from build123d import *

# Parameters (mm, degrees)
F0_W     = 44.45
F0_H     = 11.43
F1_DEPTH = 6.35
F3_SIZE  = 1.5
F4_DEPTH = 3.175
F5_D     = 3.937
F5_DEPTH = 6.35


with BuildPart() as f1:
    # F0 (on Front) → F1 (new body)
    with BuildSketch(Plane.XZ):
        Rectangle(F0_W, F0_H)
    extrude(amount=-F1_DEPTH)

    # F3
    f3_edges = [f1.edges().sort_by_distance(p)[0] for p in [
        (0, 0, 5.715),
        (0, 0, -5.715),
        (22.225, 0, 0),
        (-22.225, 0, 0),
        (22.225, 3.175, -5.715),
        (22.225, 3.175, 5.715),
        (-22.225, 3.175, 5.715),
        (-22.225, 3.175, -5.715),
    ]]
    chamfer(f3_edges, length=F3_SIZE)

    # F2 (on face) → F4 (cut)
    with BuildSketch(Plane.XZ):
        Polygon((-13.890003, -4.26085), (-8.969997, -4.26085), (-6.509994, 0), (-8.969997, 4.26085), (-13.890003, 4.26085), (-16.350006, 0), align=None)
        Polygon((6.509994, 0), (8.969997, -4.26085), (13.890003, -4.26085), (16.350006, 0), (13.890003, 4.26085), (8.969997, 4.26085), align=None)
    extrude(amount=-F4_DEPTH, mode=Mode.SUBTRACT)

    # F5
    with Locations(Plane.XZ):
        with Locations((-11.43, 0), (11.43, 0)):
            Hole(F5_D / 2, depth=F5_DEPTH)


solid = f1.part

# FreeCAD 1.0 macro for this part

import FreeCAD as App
import Part
import Sketcher

V = App.Vector
Q = App.Units.Quantity


def edges_at(feature, points):
    """Names of the edges that pass closest to the given points."""
    edges = feature.Shape.Edges
    near = lambda p: min(range(len(edges)), key=lambda i: edges[i].distToShape(Part.Vertex(*p))[0])
    return sorted({f"Edge{near(p) + 1}" for p in points})

doc = App.newDocument("Part")
body = doc.addObject("PartDesign::Body", "Body")

# Sketch on XZ plane
sketch1 = body.newObject("Sketcher::SketchObject", "Sketch")
sketch1.AttachmentSupport = (doc.getObject("XZ_Plane"), [""])
sketch1.MapMode = "FlatFace"
sketch1.addGeometry([
    Part.LineSegment(V(-22.225, 5.715, 0), V(-22.225, -5.715, 0)),
    Part.LineSegment(V(-22.225, -5.715, 0), V(22.225, -5.715, 0)),
    Part.LineSegment(V(22.225, -5.715, 0), V(22.225, 5.715, 0)),
    Part.LineSegment(V(22.225, 5.715, 0), V(-22.225, 5.715, 0)),
], False)
sketch1.addConstraint([
    Sketcher.Constraint("Coincident", 0, 2, 1, 1),
    Sketcher.Constraint("Coincident", 1, 2, 2, 1),
    Sketcher.Constraint("Coincident", 2, 2, 3, 1),
    Sketcher.Constraint("Coincident", 3, 2, 0, 1),
    Sketcher.Constraint("Vertical", 0),
    Sketcher.Constraint("Horizontal", 1),
    Sketcher.Constraint("Vertical", 2),
    Sketcher.Constraint("Horizontal", 3),
    Sketcher.Constraint("Symmetric", 0, 2, 2, 2, -1, 1),
    Sketcher.Constraint("DistanceX", 1, 1, 1, 2, Q("1.75 in")),
    Sketcher.Constraint("DistanceY", 0, 2, 0, 1, Q("0.45 in")),
])
pad1 = body.newObject("PartDesign::Pad", "Pad")
pad1.Profile = sketch1
pad1.Length = Q("0.25 in")
pad1.Reversed = True
doc.recompute()

chamfer = body.newObject("PartDesign::Chamfer", "Chamfer")
chamfer.Base = (pad1, edges_at(pad1, [
    (0, 0, 5.715),
    (0, 0, -5.715),
    (22.225, 0, 0),
    (-22.225, 0, 0),
    (22.225, 3.175, -5.715),
    (22.225, 3.175, 5.715),
    (-22.225, 3.175, 5.715),
    (-22.225, 3.175, -5.715),
]))
chamfer.Size = 1.5

# Sketch on XZ plane
sketch2 = body.newObject("Sketcher::SketchObject", "Sketch001")
sketch2.AttachmentSupport = (doc.getObject("XZ_Plane"), [""])
sketch2.MapMode = "FlatFace"
sketch2.addGeometry([
    Part.LineSegment(V(-13.890003, -4.26085, 0), V(-8.969997, -4.26085, 0)),  # 0
    Part.LineSegment(V(-8.969997, -4.26085, 0), V(-6.509994, 0, 0)),  # 1
    Part.LineSegment(V(-6.509994, 0, 0), V(-8.969997, 4.26085, 0)),  # 2
    Part.LineSegment(V(-8.969997, 4.26085, 0), V(-13.890003, 4.26085, 0)),  # 3
    Part.LineSegment(V(-13.890003, 4.26085, 0), V(-16.350006, 0, 0)),  # 4
    Part.LineSegment(V(-16.350006, 0, 0), V(-13.890003, -4.26085, 0)),  # 5
    Part.LineSegment(V(6.509994, 0, 0), V(8.969997, -4.26085, 0)),  # 6
    Part.LineSegment(V(8.969997, -4.26085, 0), V(13.890003, -4.26085, 0)),  # 7
    Part.LineSegment(V(13.890003, -4.26085, 0), V(16.350006, 0, 0)),  # 8
    Part.LineSegment(V(16.350006, 0, 0), V(13.890003, 4.26085, 0)),  # 9
    Part.LineSegment(V(13.890003, 4.26085, 0), V(8.969997, 4.26085, 0)),  # 10
    Part.LineSegment(V(8.969997, 4.26085, 0), V(6.509994, 0, 0)),  # 11
], False)
sketch2.addConstraint([
    Sketcher.Constraint("Coincident", 0, 2, 1, 1),
    Sketcher.Constraint("Coincident", 1, 2, 2, 1),
    Sketcher.Constraint("Coincident", 2, 2, 3, 1),
    Sketcher.Constraint("Coincident", 3, 2, 4, 1),
    Sketcher.Constraint("Coincident", 4, 2, 5, 1),
    Sketcher.Constraint("Coincident", 5, 2, 0, 1),
    Sketcher.Constraint("Coincident", 6, 2, 7, 1),
    Sketcher.Constraint("Coincident", 7, 2, 8, 1),
    Sketcher.Constraint("Coincident", 8, 2, 9, 1),
    Sketcher.Constraint("Coincident", 9, 2, 10, 1),
    Sketcher.Constraint("Coincident", 10, 2, 11, 1),
    Sketcher.Constraint("Coincident", 11, 2, 6, 1),
    Sketcher.Constraint("Horizontal", 0),
    Sketcher.Constraint("Horizontal", 3),
    Sketcher.Constraint("Horizontal", 7),
    Sketcher.Constraint("Horizontal", 10),
    Sketcher.Constraint("Symmetric", 2, 2, 6, 2, -1, 1),
    Sketcher.Constraint("Symmetric", 4, 2, 8, 2, -1, 1),
    Sketcher.Constraint("Symmetric", 5, 2, 9, 2, -1, 1),
    Sketcher.Constraint("Symmetric", 1, 2, 11, 2, -1, 1),
    Sketcher.Constraint("Symmetric", 0, 2, 6, 2, -2),
    Sketcher.Constraint("PointOnObject", 1, 2, -1),
    Sketcher.Constraint("PointOnObject", 4, 2, -1),
    Sketcher.Constraint("Parallel", 1, 4),
    Sketcher.Constraint("Parallel", 2, 5),
    Sketcher.Constraint("Parallel", 4, 8),
    Sketcher.Constraint("Parallel", 8, 11),
    Sketcher.Constraint("Angle", 1, Q("59.999999 deg")),
    Sketcher.Constraint("DistanceX", 5, 2, 6, 2, Q("0.9 in")),
    Sketcher.Constraint("DistanceY", 0, 2, 2, 2, Q("0.3355 in")),
    Sketcher.Constraint("DistanceX", 0, 1, 0, 2, 4.920006),
])
pocket1 = body.newObject("PartDesign::Pocket", "Pocket")
pocket1.Profile = sketch2
pocket1.Length = Q("0.125 in")

# Sketch on XZ plane
sketch3 = body.newObject("Sketcher::SketchObject", "Sketch002")
sketch3.AttachmentSupport = (doc.getObject("XZ_Plane"), [""])
sketch3.MapMode = "FlatFace"
sketch3.addGeometry([
    Part.Circle(V(-11.43, 0, 0), V(0, 0, 1), 1.9685),
    Part.Circle(V(11.43, 0, 0), V(0, 0, 1), 1.9685),
], False)
sketch3.addConstraint([
    Sketcher.Constraint("Equal", 0, 1),
    Sketcher.Constraint("Symmetric", 0, 3, 1, 3, -1, 1),
    Sketcher.Constraint("PointOnObject", 0, 3, -1),
    Sketcher.Constraint("Diameter", 0, Q("0.155 in")),
    Sketcher.Constraint("DistanceX", 0, 3, 1, 3, Q("0.9 in")),
])
doc.recompute()
hole = body.newObject("PartDesign::Hole", "Hole")
hole.Profile = sketch3
hole.ThreadType = "None"
hole.Diameter = Q("0.155 in")
hole.DepthType = "Dimension"
hole.Depth = Q("0.25 in")
hole.DrillPoint = "Flat"

doc.recompute()
